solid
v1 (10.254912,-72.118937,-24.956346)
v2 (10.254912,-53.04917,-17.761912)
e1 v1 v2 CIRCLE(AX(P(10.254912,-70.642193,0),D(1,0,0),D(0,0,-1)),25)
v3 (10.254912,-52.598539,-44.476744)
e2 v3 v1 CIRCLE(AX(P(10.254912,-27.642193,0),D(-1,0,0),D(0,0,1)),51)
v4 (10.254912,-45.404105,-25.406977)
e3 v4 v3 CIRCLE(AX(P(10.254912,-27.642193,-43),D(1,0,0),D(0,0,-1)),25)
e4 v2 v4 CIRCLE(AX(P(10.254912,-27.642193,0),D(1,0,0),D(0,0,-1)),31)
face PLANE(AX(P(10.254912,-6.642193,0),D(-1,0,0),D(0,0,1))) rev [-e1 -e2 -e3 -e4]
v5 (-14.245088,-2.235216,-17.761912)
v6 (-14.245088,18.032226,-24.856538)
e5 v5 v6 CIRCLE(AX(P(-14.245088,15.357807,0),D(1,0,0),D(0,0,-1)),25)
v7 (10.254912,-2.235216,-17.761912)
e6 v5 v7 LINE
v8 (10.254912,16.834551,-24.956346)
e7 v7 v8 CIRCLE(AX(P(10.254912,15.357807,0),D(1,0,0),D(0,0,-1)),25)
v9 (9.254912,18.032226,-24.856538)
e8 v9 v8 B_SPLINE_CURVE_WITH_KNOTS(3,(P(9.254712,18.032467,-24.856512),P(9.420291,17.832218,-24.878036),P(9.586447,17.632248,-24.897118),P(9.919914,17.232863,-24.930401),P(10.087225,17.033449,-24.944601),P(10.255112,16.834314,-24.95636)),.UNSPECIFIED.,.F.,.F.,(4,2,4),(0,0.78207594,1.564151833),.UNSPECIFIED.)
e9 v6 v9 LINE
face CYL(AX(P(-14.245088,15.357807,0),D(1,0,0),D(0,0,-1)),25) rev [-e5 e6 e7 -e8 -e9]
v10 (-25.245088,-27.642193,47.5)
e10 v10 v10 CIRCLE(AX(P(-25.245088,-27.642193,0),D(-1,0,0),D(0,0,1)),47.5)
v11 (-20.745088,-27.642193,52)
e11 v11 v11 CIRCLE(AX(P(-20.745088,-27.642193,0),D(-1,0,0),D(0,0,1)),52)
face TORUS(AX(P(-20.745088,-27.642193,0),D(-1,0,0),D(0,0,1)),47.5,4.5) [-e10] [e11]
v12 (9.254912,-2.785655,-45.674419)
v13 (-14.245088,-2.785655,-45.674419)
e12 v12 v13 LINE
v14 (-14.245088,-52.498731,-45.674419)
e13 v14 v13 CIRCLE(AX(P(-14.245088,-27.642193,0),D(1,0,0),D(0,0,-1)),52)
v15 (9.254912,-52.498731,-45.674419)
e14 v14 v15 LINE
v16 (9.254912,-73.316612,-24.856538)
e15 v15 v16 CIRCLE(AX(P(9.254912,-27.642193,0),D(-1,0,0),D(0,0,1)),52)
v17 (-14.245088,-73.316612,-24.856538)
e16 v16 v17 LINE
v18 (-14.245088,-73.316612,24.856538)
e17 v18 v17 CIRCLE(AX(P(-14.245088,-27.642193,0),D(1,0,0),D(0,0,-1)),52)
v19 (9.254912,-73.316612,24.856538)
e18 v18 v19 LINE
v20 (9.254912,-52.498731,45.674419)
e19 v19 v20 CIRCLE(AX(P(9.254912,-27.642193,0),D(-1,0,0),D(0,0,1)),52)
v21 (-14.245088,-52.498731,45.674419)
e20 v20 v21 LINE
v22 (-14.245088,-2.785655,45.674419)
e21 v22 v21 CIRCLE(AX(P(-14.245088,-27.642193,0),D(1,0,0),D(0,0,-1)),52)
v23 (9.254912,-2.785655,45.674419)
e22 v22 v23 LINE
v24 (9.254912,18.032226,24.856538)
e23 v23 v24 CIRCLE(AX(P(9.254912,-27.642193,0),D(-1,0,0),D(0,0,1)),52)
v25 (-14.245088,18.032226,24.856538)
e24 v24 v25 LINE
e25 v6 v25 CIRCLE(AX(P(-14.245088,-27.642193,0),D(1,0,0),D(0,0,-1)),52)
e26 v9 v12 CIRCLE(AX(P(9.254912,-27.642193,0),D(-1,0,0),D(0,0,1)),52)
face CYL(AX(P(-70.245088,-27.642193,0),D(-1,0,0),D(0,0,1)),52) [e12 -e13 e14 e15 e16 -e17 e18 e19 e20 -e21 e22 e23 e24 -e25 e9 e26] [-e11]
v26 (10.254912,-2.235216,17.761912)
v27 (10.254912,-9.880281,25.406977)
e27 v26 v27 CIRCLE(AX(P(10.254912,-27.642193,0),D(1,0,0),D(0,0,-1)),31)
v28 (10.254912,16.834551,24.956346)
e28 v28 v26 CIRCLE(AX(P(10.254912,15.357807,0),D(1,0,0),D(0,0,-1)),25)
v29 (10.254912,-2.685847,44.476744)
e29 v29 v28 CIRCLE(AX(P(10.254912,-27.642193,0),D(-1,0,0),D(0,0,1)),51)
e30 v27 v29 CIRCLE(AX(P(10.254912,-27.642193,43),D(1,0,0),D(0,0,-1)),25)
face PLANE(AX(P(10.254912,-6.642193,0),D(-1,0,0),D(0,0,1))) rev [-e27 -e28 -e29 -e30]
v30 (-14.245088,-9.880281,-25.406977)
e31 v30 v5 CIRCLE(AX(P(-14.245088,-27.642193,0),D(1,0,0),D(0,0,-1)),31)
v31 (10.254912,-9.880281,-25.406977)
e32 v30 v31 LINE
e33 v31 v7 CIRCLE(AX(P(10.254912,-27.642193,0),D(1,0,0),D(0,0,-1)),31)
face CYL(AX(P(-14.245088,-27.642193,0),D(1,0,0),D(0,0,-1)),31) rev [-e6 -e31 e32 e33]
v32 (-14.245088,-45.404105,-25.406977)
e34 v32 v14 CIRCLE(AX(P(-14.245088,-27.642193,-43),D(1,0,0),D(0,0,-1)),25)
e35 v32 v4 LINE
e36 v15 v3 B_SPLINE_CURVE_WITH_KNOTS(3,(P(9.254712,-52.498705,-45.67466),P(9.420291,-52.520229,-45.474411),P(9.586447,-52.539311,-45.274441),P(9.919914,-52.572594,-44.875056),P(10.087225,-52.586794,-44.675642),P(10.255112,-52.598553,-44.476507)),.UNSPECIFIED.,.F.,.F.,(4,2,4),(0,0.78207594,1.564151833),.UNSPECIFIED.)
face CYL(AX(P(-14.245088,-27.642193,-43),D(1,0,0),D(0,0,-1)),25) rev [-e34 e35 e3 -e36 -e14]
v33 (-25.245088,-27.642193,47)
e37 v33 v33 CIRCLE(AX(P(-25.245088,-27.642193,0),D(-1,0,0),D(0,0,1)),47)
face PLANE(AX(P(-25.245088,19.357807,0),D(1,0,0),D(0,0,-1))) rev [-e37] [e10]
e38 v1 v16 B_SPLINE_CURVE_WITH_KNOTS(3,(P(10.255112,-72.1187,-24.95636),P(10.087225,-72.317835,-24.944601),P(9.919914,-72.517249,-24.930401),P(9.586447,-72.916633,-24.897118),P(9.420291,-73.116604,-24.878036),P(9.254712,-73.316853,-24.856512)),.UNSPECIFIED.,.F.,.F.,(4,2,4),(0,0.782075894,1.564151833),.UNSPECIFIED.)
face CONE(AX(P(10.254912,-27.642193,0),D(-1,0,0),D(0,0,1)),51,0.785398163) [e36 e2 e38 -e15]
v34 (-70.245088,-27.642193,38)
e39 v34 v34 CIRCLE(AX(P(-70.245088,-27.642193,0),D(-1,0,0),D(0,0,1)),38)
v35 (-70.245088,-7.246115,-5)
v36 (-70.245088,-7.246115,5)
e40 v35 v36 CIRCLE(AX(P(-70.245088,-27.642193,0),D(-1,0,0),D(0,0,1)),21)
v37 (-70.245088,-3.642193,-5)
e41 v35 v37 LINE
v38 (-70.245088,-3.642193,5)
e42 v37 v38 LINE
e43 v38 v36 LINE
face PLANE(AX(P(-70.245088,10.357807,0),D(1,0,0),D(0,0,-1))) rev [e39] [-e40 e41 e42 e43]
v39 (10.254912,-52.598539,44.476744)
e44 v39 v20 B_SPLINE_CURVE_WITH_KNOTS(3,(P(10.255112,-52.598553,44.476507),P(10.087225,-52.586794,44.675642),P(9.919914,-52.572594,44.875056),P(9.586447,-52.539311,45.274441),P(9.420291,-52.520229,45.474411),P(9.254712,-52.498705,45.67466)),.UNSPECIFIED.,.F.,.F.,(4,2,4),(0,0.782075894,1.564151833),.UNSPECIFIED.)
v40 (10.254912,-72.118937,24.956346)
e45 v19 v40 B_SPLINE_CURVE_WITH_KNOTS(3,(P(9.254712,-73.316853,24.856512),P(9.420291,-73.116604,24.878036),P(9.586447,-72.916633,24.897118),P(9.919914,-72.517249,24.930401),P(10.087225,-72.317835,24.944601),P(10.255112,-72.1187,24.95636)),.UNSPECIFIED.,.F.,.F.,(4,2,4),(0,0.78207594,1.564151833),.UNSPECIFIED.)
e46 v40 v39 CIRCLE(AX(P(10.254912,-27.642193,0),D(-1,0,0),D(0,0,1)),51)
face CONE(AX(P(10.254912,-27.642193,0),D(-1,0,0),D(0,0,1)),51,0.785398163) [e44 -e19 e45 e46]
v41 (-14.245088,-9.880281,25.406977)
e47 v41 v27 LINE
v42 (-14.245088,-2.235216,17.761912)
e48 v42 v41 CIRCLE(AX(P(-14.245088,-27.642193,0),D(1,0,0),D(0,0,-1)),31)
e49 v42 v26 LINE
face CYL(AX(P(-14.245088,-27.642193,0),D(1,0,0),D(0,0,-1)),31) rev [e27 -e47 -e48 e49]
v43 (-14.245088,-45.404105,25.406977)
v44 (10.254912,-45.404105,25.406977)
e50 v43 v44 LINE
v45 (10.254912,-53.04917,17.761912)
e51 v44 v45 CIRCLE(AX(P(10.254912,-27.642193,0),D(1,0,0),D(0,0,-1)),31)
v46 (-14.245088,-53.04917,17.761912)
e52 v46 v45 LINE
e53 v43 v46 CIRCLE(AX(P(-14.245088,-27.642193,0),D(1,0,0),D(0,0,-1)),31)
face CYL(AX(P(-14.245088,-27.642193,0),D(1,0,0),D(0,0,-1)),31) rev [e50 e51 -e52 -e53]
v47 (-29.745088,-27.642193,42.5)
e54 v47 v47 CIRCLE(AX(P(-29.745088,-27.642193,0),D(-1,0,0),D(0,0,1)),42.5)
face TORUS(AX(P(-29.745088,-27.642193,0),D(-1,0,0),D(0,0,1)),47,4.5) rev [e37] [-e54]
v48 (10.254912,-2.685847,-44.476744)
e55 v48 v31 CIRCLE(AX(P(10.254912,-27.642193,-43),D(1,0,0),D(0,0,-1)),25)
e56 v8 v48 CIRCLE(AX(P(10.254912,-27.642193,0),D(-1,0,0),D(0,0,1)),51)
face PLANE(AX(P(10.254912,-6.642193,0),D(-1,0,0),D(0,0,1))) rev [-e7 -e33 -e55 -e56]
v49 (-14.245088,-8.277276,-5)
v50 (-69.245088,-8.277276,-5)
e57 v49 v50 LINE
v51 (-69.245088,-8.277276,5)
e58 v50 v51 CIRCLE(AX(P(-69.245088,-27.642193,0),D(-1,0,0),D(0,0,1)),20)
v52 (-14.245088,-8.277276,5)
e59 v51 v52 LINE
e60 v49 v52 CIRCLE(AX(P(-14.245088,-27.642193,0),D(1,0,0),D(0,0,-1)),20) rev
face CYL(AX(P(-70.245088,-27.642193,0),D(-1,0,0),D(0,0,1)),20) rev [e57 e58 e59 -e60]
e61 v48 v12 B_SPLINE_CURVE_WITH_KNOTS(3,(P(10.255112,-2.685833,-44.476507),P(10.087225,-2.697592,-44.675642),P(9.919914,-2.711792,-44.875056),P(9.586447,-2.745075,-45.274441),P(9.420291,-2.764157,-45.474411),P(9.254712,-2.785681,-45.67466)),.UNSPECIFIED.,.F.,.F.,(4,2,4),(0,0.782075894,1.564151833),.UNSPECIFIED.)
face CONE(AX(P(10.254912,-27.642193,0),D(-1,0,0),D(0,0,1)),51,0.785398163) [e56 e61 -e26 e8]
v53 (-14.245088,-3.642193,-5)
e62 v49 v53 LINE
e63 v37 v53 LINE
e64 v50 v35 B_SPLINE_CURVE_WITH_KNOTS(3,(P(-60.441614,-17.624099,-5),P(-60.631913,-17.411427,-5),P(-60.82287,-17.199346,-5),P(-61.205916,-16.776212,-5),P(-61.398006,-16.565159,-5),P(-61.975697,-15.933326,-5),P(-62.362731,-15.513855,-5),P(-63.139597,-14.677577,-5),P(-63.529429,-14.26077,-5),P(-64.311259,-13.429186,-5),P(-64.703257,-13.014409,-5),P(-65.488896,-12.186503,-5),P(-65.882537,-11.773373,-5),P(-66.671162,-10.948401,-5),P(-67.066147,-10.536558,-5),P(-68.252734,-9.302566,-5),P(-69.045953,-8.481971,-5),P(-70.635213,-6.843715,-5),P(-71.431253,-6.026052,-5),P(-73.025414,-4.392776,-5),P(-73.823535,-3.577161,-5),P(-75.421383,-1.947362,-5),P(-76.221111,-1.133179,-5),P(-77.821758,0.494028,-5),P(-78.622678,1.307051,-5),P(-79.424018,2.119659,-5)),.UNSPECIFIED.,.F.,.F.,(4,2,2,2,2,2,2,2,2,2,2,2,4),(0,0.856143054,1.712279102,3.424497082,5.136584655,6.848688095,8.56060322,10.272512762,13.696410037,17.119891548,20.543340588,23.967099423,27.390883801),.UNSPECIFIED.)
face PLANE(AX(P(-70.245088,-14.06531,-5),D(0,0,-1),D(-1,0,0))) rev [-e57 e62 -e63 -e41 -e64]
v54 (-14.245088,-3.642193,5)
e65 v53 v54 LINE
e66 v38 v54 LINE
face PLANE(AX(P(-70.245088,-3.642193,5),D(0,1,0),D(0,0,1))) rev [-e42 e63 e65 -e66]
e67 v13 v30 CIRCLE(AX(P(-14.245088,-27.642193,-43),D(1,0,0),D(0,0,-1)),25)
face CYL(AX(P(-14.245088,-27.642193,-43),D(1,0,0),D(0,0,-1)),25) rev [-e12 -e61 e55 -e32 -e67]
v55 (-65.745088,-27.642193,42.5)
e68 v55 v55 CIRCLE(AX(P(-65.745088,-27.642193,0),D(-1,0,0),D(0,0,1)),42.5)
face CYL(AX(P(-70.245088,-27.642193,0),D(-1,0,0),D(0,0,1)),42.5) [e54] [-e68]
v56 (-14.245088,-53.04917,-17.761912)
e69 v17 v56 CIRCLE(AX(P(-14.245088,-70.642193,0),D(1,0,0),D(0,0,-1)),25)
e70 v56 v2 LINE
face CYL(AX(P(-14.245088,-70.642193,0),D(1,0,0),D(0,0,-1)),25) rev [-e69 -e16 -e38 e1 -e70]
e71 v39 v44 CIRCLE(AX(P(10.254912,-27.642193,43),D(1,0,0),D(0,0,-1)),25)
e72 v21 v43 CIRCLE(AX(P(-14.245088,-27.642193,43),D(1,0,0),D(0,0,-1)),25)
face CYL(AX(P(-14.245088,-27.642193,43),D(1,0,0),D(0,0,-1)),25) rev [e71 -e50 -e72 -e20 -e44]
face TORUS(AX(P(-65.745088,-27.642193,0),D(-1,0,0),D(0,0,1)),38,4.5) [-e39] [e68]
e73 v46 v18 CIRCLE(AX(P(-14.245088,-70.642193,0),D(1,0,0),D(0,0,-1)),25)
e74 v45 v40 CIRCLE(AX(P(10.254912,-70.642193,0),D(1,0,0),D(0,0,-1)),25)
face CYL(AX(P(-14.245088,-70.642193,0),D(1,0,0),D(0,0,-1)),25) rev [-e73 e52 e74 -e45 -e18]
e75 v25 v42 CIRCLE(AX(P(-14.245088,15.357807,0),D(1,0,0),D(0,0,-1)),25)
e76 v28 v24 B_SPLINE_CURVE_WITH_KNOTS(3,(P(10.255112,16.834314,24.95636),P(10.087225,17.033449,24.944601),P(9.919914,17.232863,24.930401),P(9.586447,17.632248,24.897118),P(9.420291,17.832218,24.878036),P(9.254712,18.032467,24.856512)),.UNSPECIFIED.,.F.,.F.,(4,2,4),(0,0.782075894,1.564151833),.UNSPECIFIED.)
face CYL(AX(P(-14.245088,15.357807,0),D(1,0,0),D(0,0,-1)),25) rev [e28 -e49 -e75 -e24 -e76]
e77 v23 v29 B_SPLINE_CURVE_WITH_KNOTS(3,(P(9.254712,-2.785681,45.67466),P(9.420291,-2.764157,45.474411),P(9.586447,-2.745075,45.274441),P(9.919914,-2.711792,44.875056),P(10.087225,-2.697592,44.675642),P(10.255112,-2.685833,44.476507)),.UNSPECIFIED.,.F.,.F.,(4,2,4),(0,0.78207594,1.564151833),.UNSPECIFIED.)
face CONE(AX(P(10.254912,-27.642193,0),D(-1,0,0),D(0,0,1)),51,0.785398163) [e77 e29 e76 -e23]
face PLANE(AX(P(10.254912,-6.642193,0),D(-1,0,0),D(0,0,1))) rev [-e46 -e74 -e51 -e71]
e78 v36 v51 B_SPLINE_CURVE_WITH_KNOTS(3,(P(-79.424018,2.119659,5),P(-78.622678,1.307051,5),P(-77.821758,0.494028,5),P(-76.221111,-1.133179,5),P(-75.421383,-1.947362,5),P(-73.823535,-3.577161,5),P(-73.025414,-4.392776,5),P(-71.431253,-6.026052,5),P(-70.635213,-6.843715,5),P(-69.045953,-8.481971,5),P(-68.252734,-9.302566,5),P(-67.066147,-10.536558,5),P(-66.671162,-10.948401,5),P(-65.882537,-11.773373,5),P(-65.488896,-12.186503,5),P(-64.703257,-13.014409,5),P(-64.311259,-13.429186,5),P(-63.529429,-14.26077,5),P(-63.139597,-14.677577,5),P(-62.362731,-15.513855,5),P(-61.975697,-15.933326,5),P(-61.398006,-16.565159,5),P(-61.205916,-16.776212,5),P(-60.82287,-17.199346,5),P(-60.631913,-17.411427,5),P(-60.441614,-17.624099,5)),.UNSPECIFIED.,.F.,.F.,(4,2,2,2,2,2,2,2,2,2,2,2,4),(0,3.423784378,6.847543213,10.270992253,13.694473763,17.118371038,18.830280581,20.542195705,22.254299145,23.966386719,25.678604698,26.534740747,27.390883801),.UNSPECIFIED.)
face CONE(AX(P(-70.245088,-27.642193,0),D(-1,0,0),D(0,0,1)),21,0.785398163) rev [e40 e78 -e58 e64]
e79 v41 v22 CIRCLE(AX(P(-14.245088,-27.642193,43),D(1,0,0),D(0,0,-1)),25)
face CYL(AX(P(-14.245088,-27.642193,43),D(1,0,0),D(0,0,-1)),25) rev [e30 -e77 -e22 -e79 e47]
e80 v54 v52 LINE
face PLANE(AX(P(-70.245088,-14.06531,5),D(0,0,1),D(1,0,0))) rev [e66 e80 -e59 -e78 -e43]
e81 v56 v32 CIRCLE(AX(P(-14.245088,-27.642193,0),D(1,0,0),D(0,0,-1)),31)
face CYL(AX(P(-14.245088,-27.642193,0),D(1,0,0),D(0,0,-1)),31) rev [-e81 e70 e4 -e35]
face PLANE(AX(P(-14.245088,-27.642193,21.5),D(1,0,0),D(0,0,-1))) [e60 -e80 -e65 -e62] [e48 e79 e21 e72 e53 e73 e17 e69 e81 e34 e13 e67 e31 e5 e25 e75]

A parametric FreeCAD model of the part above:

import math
import FreeCAD as App
import Part
import Sketcher
Q = App.Units.Quantity


def add_polygon(sketch, points):
    """Adds a closed chain of lines whose ends are joined by coincident constraints."""
    first, n = sketch.GeometryCount, len(points)
    for a, b in zip(points, points[1:] + points[:1]):
        sketch.addGeometry(Part.LineSegment(App.Vector(*a, 0), App.Vector(*b, 0)), False)
    for i in range(n):
        sketch.addConstraint(Sketcher.Constraint("Coincident", first + i, 2, first + (i + 1) % n, 1))

doc = App.newDocument("Part")
body = doc.addObject("PartDesign::Body", "Body")

# Sketch on XY plane
sketch1 = doc.addObject("Sketcher::SketchObject", "Sketch")
body.addObject(sketch1)
sketch1.AttachmentSupport = (doc.XY_Plane, [""])
sketch1.MapMode = "FlatFace"
sketch1.addGeometry(Part.LineSegment(App.Vector(-70.2, -6.6, 0), App.Vector(-69.2, -7.6, 0)), False)
sketch1.addGeometry(Part.LineSegment(App.Vector(-69.2, -7.6, 0), App.Vector(9.3, -7.6, 0)), False)
sketch1.addGeometry(Part.LineSegment(App.Vector(9.3, -7.6, 0), App.Vector(10.3, -6.6, 0)), False)
sketch1.addGeometry(Part.LineSegment(App.Vector(10.3, -6.6, 0), App.Vector(10.3, 23.4, 0)), False)
sketch1.addGeometry(Part.LineSegment(App.Vector(10.3, 23.4, 0), App.Vector(9.3, 24.4, 0)), False)
sketch1.addGeometry(Part.LineSegment(App.Vector(9.3, 24.4, 0), App.Vector(-20.7, 24.4, 0)), False)
sketch1.addGeometry(Part.ArcOfCircle(Part.Circle(App.Vector(-20.7, 19.9, 0), App.Vector(0, 0, 1), 4.5), math.radians(90), math.radians(180)), False)
sketch1.addGeometry(Part.LineSegment(App.Vector(-25.2, 19.9, 0), App.Vector(-25.2, 19.4, 0)), False)
sketch1.addGeometry(Part.ArcOfCircle(Part.Circle(App.Vector(-29.7, 19.4, 0), App.Vector(0, 0, 1), 4.5), math.radians(-90), math.radians(0)), False)
sketch1.addGeometry(Part.LineSegment(App.Vector(-29.7, 14.9, 0), App.Vector(-65.7, 14.9, 0)), False)
sketch1.addGeometry(Part.ArcOfCircle(Part.Circle(App.Vector(-65.7, 10.4, 0), App.Vector(0, 0, 1), 4.5), math.radians(90), math.radians(180)), False)
sketch1.addGeometry(Part.LineSegment(App.Vector(-70.2, 10.4, 0), App.Vector(-70.2, -6.6, 0)), False)
sketch1.addGeometry(Part.LineSegment(App.Vector(-70.2, -27.6, 0), App.Vector(10.3, -27.6, 0)), True)  # axis
sketch1.addConstraint(Sketcher.Constraint("Coincident", 0, 2, 1, 1))
sketch1.addConstraint(Sketcher.Constraint("Coincident", 1, 2, 2, 1))
sketch1.addConstraint(Sketcher.Constraint("Coincident", 2, 2, 3, 1))
sketch1.addConstraint(Sketcher.Constraint("Coincident", 3, 2, 4, 1))
sketch1.addConstraint(Sketcher.Constraint("Coincident", 4, 2, 5, 1))
sketch1.addConstraint(Sketcher.Constraint("Tangent", 5, 2, 6, 1))
sketch1.addConstraint(Sketcher.Constraint("Tangent", 6, 2, 7, 1))
sketch1.addConstraint(Sketcher.Constraint("Tangent", 7, 2, 8, 2))
sketch1.addConstraint(Sketcher.Constraint("Tangent", 8, 1, 9, 1))
sketch1.addConstraint(Sketcher.Constraint("Tangent", 9, 2, 10, 1))
sketch1.addConstraint(Sketcher.Constraint("Tangent", 10, 2, 11, 1))
sketch1.addConstraint(Sketcher.Constraint("Coincident", 11, 2, 0, 1))
sketch1.addConstraint(Sketcher.Constraint("Horizontal", 1))
sketch1.addConstraint(Sketcher.Constraint("Vertical", 3))
sketch1.addConstraint(Sketcher.Constraint("Horizontal", 5))
sketch1.addConstraint(Sketcher.Constraint("Vertical", 7))
sketch1.addConstraint(Sketcher.Constraint("Horizontal", 9))
sketch1.addConstraint(Sketcher.Constraint("Vertical", 11))
sketch1.addConstraint(Sketcher.Constraint("Horizontal", 12))
sketch1.addConstraint(Sketcher.Constraint("Equal", 6, 8))
sketch1.addConstraint(Sketcher.Constraint("Equal", 8, 10))
sketch1.addConstraint(Sketcher.Constraint("Perpendicular", 0, 2))
sketch1.addConstraint(Sketcher.Constraint("Perpendicular", 2, 4))
sketch1.addConstraint(Sketcher.Constraint("Horizontal", 2, 2, 11, 2))
sketch1.addConstraint(Sketcher.Constraint("Vertical", 1, 2, 4, 2))
sketch1.addConstraint(Sketcher.Constraint("Vertical", 11, 2, 12, 1))
sketch1.addConstraint(Sketcher.Constraint("Vertical", 3, 2, 12, 2))
sketch1.addConstraint(Sketcher.Constraint("Equal", 5, 3))
sketch1.addConstraint(Sketcher.Constraint("Equal", 0, 2))
sketch1.addConstraint(Sketcher.Constraint("Radius", 6, Q("4.5 mm")))
sketch1.addConstraint(Sketcher.Constraint("DistanceX", 5, 2, 5, 1, Q("30 mm")))
sketch1.addConstraint(Sketcher.Constraint("DistanceX", 9, 2, 9, 1, Q("36 mm")))
sketch1.addConstraint(Sketcher.Constraint("DistanceY", 11, 2, 11, 1, Q("17 mm")))
sketch1.addConstraint(Sketcher.Constraint("DistanceX", 1, 1, 1, 2, Q("78.5 mm")))
sketch1.addConstraint(Sketcher.Constraint("DistanceY", 12, 1, 0, 2, Q("20 mm")))
sketch1.addConstraint(Sketcher.Constraint("DistanceX", 6, 3, -1, 1, Q("20.745088 mm")))
sketch1.addConstraint(Sketcher.Constraint("DistanceY", -1, 1, 6, 3, Q("19.857807 mm")))
revolution = doc.addObject("PartDesign::Revolution", "Revolution")
body.addObject(revolution)
revolution.Profile = sketch1
revolution.ReferenceAxis = (sketch1, ["Axis0"])
revolution.Angle = 360

# Sketch on YZ plane
sketch2 = doc.addObject("Sketcher::SketchObject", "Sketch001")
body.addObject(sketch2)
sketch2.AttachmentSupport = (doc.YZ_Plane, [""])
sketch2.MapMode = "FlatFace"
sketch2.AttachmentOffset = App.Placement(App.Vector(0, 0, 10.254912), App.Rotation())
sketch2.addGeometry(Part.ArcOfCircle(Part.Circle(App.Vector(-71, 0, 0), App.Vector(0, 0, 1), 25), math.radians(45), math.radians(315)), False)
sketch2.addGeometry(Part.ArcOfCircle(Part.Circle(App.Vector(-28, 0, 0), App.Vector(0, 0, 1), 31), math.radians(-145), math.radians(-125)), False)
sketch2.addGeometry(Part.ArcOfCircle(Part.Circle(App.Vector(-28, -43, 0), App.Vector(0, 0, 1), 25), math.radians(135), math.radians(405)), False)
sketch2.addGeometry(Part.ArcOfCircle(Part.Circle(App.Vector(-28, 0, 0), App.Vector(0, 0, 1), 31), math.radians(-55), math.radians(-35)), False)
sketch2.addGeometry(Part.ArcOfCircle(Part.Circle(App.Vector(15, 0, 0), App.Vector(0, 0, 1), 25), math.radians(-135), math.radians(135)), False)
sketch2.addGeometry(Part.ArcOfCircle(Part.Circle(App.Vector(-28, 0, 0), App.Vector(0, 0, 1), 31), math.radians(35), math.radians(55)), False)
sketch2.addGeometry(Part.ArcOfCircle(Part.Circle(App.Vector(-28, 43, 0), App.Vector(0, 0, 1), 25), math.radians(-45), math.radians(225)), False)
sketch2.addGeometry(Part.ArcOfCircle(Part.Circle(App.Vector(-28, 0, 0), App.Vector(0, 0, 1), 31), math.radians(125), math.radians(145)), False)
sketch2.addConstraint(Sketcher.Constraint("Coincident", 0, 2, 1, 1))
sketch2.addConstraint(Sketcher.Constraint("Coincident", 1, 2, 2, 1))
sketch2.addConstraint(Sketcher.Constraint("Coincident", 2, 2, 3, 1))
sketch2.addConstraint(Sketcher.Constraint("Coincident", 3, 2, 4, 1))
sketch2.addConstraint(Sketcher.Constraint("Coincident", 4, 2, 5, 1))
sketch2.addConstraint(Sketcher.Constraint("Coincident", 5, 2, 6, 1))
sketch2.addConstraint(Sketcher.Constraint("Coincident", 6, 2, 7, 1))
sketch2.addConstraint(Sketcher.Constraint("Coincident", 7, 2, 0, 1))
sketch2.addConstraint(Sketcher.Constraint("Coincident", 3, 3, 1, 3))
sketch2.addConstraint(Sketcher.Constraint("Coincident", 5, 3, 1, 3))
sketch2.addConstraint(Sketcher.Constraint("Coincident", 7, 3, 1, 3))
sketch2.addConstraint(Sketcher.Constraint("Equal", 0, 2))
sketch2.addConstraint(Sketcher.Constraint("Equal", 1, 3))
sketch2.addConstraint(Sketcher.Constraint("Equal", 2, 4))
sketch2.addConstraint(Sketcher.Constraint("Equal", 3, 5))
sketch2.addConstraint(Sketcher.Constraint("Equal", 4, 6))
sketch2.addConstraint(Sketcher.Constraint("Equal", 5, 7))
sketch2.addConstraint(Sketcher.Constraint("Symmetric", 2, 3, 6, 3, -1))
sketch2.addConstraint(Sketcher.Constraint("Symmetric", 3, 2, 4, 2, -1))
sketch2.addConstraint(Sketcher.Constraint("PointOnObject", 0, 3, -1))
sketch2.addConstraint(Sketcher.Constraint("Horizontal", 1, 2, 2, 2))
sketch2.addConstraint(Sketcher.Constraint("Horizontal", 0, 2, 3, 2))
sketch2.addConstraint(Sketcher.Constraint("Radius", 0, Q("25 mm")))
sketch2.addConstraint(Sketcher.Constraint("Radius", 1, Q("31 mm")))
sketch2.addConstraint(Sketcher.Constraint("DistanceY", 2, 3, -1, 1, Q("43 mm")))
sketch2.addConstraint(Sketcher.Constraint("DistanceX", 0, 3, 1, 3, Q("43 mm")))
sketch2.addConstraint(Sketcher.Constraint("DistanceX", 0, 2, -1, 1, Q("53.04917 mm")))
pocket1 = doc.addObject("PartDesign::Pocket", "Pocket")
body.addObject(pocket1)
pocket1.Profile = sketch2
pocket1.Length = 24.5

# Sketch on YZ plane
sketch3 = doc.addObject("Sketcher::SketchObject", "Sketch002")
body.addObject(sketch3)
sketch3.AttachmentSupport = (doc.YZ_Plane, [""])
sketch3.MapMode = "FlatFace"
sketch3.AttachmentOffset = App.Placement(App.Vector(0, 0, -14.245088), App.Rotation())
add_polygon(sketch3, [(-4, 5), (-14, 5), (-14, -5), (-4, -5)])  # lines 0-3
sketch3.addConstraint(Sketcher.Constraint("Horizontal", 0))
sketch3.addConstraint(Sketcher.Constraint("Vertical", 1))
sketch3.addConstraint(Sketcher.Constraint("Horizontal", 2))
sketch3.addConstraint(Sketcher.Constraint("Vertical", 3))
sketch3.addConstraint(Sketcher.Constraint("DistanceY", 1, 2, 1, 1, Q("10 mm")))
sketch3.addConstraint(Sketcher.Constraint("DistanceY", -1, 1, 0, 2, Q("5 mm")))
sketch3.addConstraint(Sketcher.Constraint("DistanceX", 0, 2, 0, 1, Q("10.423117 mm")))
sketch3.addConstraint(Sketcher.Constraint("DistanceX", 0, 2, -1, 1, Q("14.06531 mm")))
pocket2 = doc.addObject("PartDesign::Pocket", "Pocket001")
body.addObject(pocket2)
pocket2.Profile = sketch3
pocket2.Type = "ThroughAll"

doc.recompute()
